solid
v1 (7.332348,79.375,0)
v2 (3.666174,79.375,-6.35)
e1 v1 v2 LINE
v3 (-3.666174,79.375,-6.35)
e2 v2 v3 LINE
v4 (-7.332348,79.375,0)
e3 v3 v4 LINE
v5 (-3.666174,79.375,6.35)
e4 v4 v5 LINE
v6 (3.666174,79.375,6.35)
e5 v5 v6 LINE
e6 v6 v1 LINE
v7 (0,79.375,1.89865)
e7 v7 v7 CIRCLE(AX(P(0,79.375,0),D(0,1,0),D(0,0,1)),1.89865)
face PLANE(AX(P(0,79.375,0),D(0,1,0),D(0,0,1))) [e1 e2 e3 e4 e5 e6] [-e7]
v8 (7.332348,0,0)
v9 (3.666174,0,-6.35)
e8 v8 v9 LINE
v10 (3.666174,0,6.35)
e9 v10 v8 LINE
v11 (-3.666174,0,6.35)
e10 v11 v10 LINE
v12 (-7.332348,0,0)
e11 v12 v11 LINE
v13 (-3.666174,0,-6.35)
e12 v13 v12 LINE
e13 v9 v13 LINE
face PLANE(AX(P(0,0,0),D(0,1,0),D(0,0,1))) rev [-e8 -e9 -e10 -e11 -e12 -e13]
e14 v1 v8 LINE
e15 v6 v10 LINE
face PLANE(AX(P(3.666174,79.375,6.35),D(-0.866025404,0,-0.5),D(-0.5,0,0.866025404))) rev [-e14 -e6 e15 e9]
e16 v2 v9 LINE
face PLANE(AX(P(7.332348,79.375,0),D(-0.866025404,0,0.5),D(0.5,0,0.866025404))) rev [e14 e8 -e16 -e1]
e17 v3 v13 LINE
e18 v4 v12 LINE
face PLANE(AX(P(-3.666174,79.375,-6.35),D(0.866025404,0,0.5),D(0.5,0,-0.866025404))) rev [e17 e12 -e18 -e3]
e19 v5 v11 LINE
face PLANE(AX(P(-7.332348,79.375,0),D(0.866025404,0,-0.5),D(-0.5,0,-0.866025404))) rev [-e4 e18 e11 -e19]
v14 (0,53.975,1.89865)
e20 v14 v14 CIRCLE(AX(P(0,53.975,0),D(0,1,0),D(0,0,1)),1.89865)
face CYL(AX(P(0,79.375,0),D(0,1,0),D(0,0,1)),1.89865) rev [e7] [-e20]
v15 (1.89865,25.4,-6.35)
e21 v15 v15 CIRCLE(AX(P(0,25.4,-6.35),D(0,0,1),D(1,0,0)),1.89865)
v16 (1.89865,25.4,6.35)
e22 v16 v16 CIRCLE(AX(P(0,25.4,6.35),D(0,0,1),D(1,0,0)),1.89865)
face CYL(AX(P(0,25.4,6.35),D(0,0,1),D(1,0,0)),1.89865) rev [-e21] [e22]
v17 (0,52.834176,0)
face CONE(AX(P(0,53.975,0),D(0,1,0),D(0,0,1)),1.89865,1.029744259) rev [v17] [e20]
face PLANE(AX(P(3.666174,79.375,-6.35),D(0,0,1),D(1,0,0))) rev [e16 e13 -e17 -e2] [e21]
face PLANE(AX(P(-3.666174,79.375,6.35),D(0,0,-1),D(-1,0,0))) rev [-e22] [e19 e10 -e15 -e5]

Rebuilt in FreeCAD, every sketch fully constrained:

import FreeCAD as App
import Part
import Sketcher

V = App.Vector
Q = App.Units.Quantity


def add_polygon(sketch, points):
    """Adds a closed chain of lines whose ends are joined by coincident constraints."""
    first, n = sketch.GeometryCount, len(points)
    for a, b in zip(points, points[1:] + points[:1]):
        sketch.addGeometry(Part.LineSegment(App.Vector(*a, 0), App.Vector(*b, 0)), False)
    for i in range(n):
        sketch.addConstraint(Sketcher.Constraint("Coincident", first + i, 2, first + (i + 1) % n, 1))

doc = App.newDocument("Part")
body = doc.addObject("PartDesign::Body", "Body")

# Sketch on XZ plane
sketch1 = doc.addObject("Sketcher::SketchObject", "Sketch")
body.addObject(sketch1)
sketch1.AttachmentSupport = (doc.XZ_Plane, [""])
sketch1.MapMode = "FlatFace"
add_polygon(sketch1, [(7.332348, 0), (3.666174, -6.35), (-3.666174, -6.35), (-7.332348, 0), (-3.666174, 6.35), (3.666174, 6.35)])  # lines 0-5
sketch1.addConstraint([
    Sketcher.Constraint("Horizontal", 1),
    Sketcher.Constraint("Horizontal", 4),
    Sketcher.Constraint("Symmetric", 0, 2, 3, 2, -1, 1),
    Sketcher.Constraint("Symmetric", 2, 2, 5, 2, -1, 1),
    Sketcher.Constraint("PointOnObject", 2, 2, -1),
    Sketcher.Constraint("Parallel", 2, 5),
    Sketcher.Constraint("Vertical", 1, 2, 3, 2),
    Sketcher.Constraint("Angle", 0, Q("-120 deg")),
    Sketcher.Constraint("DistanceY", 1, 2, 3, 2, Q("0.5 in")),
    Sketcher.Constraint("DistanceX", 1, 2, 1, 1, Q("7.332348 mm")),
])
pad1 = doc.addObject("PartDesign::Pad", "Pad")
body.addObject(pad1)
pad1.Profile = sketch1
pad1.Length = Q("3.125 in")
pad1.Reversed = True

# Sketch on XZ plane
sketch2 = doc.addObject("Sketcher::SketchObject", "Sketch001")
body.addObject(sketch2)
sketch2.AttachmentSupport = (doc.XZ_Plane, [""])
sketch2.MapMode = "FlatFace"
sketch2.AttachmentOffset = App.Placement(V(0, 0, -3.125 * 25.4), App.Rotation())
sketch2.addGeometry(Part.Circle(V(0, 0, 0), V(0, 0, 1), 1.89865), False)
sketch2.addConstraint([
    Sketcher.Constraint("Coincident", 0, 3, -1, 1),
    Sketcher.Constraint("Diameter", 0, Q("0.1495 in")),
])
doc.recompute()
hole = doc.addObject("PartDesign::Hole", "Hole")
body.addObject(hole)
hole.Profile = sketch2
hole.ThreadType = "None"
hole.Diameter = Q("0.1495 in")
hole.DepthType = "Dimension"
hole.Depth = Q("1 in")
hole.DrillPoint = "Angled"
hole.DrillPointAngle = 118
hole.Reversed = True

# Sketch on XY plane
sketch3 = doc.addObject("Sketcher::SketchObject", "Sketch002")
body.addObject(sketch3)
sketch3.AttachmentSupport = (doc.XY_Plane, [""])
sketch3.MapMode = "FlatFace"
sketch3.AttachmentOffset = App.Placement(V(0, 0, 0.25 * 25.4), App.Rotation())
sketch3.addGeometry(Part.Circle(V(0, 25.4, 0), V(0, 0, 1), 1.89865), False)
sketch3.addConstraint([
    Sketcher.Constraint("PointOnObject", 0, 3, -2),
    Sketcher.Constraint("DistanceY", -1, 1, 0, 3, Q("1 in")),
    Sketcher.Constraint("Diameter", 0, Q("0.1495 in")),
])
doc.recompute()
hole2 = doc.addObject("PartDesign::Hole", "Hole001")
body.addObject(hole2)
hole2.Profile = sketch3
hole2.ThreadType = "None"
hole2.Diameter = Q("0.1495 in")
hole2.DepthType = "Dimension"
hole2.Depth = Q("1 in")
hole2.DrillPoint = "Angled"
hole2.DrillPointAngle = 118

doc.recompute()
